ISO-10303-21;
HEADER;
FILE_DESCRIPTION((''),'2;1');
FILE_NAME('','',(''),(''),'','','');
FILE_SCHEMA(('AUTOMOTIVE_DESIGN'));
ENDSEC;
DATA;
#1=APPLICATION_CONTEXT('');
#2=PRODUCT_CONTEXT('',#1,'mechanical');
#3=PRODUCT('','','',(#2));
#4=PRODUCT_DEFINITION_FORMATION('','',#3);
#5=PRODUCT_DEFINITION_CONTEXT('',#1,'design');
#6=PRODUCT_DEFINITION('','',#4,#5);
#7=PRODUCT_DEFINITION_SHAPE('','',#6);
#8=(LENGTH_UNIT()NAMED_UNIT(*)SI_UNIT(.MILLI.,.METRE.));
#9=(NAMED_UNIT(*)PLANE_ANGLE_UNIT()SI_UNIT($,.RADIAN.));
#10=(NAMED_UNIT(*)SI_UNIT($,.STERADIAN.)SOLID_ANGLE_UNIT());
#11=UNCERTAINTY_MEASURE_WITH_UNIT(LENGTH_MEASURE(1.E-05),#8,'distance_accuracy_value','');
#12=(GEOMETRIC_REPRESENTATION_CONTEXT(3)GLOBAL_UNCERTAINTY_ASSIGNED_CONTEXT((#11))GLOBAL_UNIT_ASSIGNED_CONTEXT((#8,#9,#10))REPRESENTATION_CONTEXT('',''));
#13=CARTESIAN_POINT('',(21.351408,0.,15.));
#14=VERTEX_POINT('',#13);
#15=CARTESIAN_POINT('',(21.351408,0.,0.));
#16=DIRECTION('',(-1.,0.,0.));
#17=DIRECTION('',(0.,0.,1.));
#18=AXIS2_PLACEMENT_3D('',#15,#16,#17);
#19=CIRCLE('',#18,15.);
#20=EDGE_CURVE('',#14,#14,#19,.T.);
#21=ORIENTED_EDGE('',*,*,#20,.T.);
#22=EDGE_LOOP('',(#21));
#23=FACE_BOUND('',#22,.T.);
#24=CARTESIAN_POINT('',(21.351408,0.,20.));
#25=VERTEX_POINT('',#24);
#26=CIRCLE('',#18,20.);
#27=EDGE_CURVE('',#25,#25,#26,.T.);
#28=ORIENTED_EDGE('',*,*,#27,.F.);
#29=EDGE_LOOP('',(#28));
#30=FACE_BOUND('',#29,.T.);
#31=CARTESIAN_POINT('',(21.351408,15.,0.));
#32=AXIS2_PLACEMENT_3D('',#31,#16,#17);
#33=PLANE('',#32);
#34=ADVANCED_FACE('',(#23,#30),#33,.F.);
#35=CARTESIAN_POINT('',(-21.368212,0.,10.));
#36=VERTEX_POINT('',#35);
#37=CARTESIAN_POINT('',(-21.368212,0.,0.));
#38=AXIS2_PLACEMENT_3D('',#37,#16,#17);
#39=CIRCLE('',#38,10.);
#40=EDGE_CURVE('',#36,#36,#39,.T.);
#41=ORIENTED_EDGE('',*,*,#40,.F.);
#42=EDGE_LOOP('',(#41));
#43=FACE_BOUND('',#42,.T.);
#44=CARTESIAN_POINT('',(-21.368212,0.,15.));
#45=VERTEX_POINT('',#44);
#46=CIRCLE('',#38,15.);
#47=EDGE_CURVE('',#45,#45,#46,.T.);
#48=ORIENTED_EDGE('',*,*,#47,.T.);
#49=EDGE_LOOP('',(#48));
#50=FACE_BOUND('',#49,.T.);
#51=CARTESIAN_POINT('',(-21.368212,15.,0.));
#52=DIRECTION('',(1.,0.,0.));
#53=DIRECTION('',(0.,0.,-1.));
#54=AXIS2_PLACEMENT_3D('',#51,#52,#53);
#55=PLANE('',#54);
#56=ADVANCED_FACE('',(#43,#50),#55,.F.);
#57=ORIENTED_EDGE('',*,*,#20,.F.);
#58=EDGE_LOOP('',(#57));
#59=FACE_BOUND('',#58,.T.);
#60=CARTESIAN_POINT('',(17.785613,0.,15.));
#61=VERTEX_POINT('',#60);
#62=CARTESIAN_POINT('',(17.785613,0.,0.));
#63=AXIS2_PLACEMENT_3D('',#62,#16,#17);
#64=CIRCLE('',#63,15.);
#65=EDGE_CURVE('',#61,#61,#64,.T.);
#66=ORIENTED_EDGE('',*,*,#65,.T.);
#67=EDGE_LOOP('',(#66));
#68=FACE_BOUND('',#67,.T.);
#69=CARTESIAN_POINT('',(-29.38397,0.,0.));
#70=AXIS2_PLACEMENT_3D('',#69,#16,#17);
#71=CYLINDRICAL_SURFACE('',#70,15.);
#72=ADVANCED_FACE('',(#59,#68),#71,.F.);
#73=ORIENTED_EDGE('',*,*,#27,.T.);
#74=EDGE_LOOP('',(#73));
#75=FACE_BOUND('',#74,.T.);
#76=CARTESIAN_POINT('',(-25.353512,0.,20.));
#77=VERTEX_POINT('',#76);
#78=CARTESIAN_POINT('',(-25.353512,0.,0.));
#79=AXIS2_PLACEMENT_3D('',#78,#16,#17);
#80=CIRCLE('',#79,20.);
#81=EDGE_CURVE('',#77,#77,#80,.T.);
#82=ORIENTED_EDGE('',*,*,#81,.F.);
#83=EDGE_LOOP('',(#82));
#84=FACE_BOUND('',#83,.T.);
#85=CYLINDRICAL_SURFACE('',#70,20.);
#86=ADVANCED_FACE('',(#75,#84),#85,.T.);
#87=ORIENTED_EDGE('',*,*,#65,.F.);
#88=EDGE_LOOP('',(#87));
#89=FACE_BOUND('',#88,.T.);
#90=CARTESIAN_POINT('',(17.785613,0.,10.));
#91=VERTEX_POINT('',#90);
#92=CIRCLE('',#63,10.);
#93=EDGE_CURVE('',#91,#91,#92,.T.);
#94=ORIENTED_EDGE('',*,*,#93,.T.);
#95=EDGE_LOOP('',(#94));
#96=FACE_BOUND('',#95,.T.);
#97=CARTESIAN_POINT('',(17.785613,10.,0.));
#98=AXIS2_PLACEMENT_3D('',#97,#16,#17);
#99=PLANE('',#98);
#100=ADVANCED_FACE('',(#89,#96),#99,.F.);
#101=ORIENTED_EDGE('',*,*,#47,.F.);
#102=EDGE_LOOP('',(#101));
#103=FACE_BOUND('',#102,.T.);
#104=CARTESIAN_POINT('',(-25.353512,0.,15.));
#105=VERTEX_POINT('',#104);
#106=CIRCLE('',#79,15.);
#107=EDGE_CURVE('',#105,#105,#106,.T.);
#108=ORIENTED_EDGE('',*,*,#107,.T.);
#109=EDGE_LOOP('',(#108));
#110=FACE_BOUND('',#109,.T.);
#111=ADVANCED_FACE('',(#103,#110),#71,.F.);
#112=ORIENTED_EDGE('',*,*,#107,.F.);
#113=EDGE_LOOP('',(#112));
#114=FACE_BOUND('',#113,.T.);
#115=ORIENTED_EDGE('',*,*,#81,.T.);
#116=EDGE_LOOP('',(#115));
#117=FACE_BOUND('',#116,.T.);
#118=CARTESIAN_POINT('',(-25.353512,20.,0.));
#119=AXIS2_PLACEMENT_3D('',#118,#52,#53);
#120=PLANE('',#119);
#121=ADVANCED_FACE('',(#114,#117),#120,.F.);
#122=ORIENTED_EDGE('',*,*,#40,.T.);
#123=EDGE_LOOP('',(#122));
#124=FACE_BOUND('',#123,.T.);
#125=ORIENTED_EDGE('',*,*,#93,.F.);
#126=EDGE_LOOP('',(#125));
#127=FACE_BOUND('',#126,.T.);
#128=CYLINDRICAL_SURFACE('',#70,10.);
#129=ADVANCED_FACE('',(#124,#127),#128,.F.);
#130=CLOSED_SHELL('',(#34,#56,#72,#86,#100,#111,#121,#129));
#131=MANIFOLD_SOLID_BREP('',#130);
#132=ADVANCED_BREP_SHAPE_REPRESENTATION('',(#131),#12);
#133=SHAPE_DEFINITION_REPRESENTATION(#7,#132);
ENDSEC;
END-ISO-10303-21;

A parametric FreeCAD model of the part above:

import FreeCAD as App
import Part
import Sketcher
Q = App.Units.Quantity


def add_polygon(sketch, points):
    """Adds a closed chain of lines whose ends are joined by coincident constraints."""
    first, n = sketch.GeometryCount, len(points)
    for a, b in zip(points, points[1:] + points[:1]):
        sketch.addGeometry(Part.LineSegment(App.Vector(*a, 0), App.Vector(*b, 0)), False)
    for i in range(n):
        sketch.addConstraint(Sketcher.Constraint("Coincident", first + i, 2, first + (i + 1) % n, 1))

doc = App.newDocument("Part")
body = doc.addObject("PartDesign::Body", "Body")

# Sketch on XY plane
sketch1 = body.newObject("Sketcher::SketchObject", "Sketch")
sketch1.AttachmentSupport = (doc.getObject("XY_Plane"), [""])
sketch1.MapMode = "FlatFace"
add_polygon(sketch1, [(-25.4, 20), (-25.4, 15), (-21.4, 15), (-21.4, 10), (17.8, 10), (17.8, 15), (21.4, 15), (21.4, 20)])  # lines 0-7
sketch1.addConstraint(Sketcher.Constraint("Vertical", 0))
sketch1.addConstraint(Sketcher.Constraint("Horizontal", 1))
sketch1.addConstraint(Sketcher.Constraint("Vertical", 2))
sketch1.addConstraint(Sketcher.Constraint("Horizontal", 3))
sketch1.addConstraint(Sketcher.Constraint("Vertical", 4))
sketch1.addConstraint(Sketcher.Constraint("Horizontal", 5))
sketch1.addConstraint(Sketcher.Constraint("Vertical", 6))
sketch1.addConstraint(Sketcher.Constraint("Horizontal", 7))
sketch1.addConstraint(Sketcher.Constraint("Horizontal", 1, 2, 4, 2))
sketch1.addConstraint(Sketcher.Constraint("Equal", 0, 2))
sketch1.addConstraint(Sketcher.Constraint("DistanceY", 0, 2, 0, 1, Q("5 mm")))
sketch1.addConstraint(Sketcher.Constraint("DistanceY", -1, 1, 0, 2, Q("15 mm")))
sketch1.addConstraint(Sketcher.Constraint("DistanceX", 1, 1, 1, 2, Q("3.9853 mm")))
sketch1.addConstraint(Sketcher.Constraint("DistanceX", 7, 2, 7, 1, Q("46.70492 mm")))
sketch1.addConstraint(Sketcher.Constraint("DistanceX", 3, 1, 3, 2, Q("39.153826 mm")))
sketch1.addConstraint(Sketcher.Constraint("DistanceX", -1, 1, 5, 2, Q("21.351408 mm")))
revolution = body.newObject("PartDesign::Revolution", "Revolution")
revolution.Profile = sketch1
revolution.ReferenceAxis = (sketch1, ["H_Axis"])
revolution.Angle = 360

doc.recompute()
